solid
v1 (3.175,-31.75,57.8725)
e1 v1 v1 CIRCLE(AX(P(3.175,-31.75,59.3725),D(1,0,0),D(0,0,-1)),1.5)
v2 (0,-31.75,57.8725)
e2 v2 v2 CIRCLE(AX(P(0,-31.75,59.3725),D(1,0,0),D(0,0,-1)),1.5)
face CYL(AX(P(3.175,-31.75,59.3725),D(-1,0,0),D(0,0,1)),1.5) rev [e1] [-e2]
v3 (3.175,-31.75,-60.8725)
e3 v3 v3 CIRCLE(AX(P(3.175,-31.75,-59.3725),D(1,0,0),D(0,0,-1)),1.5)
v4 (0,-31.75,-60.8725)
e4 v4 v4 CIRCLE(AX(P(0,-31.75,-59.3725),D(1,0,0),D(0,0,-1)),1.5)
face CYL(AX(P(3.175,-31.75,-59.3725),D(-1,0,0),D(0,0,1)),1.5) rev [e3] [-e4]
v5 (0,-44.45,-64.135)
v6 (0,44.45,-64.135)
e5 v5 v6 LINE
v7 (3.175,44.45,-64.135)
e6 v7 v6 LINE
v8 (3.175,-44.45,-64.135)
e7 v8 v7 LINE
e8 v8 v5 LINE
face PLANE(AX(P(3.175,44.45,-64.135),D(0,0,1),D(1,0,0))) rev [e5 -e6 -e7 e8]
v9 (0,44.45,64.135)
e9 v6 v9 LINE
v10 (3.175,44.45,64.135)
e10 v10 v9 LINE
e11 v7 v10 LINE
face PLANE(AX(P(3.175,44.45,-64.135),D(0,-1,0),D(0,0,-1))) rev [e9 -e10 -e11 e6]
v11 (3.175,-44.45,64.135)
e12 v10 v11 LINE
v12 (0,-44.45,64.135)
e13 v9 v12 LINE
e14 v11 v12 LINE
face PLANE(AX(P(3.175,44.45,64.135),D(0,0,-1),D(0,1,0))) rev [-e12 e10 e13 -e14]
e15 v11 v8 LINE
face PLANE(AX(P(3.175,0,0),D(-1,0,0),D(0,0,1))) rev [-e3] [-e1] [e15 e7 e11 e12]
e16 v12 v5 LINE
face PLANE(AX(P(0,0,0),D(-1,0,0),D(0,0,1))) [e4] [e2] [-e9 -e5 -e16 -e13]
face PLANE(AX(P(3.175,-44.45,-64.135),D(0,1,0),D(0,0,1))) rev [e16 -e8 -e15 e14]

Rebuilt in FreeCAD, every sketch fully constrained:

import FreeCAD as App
import Part
import Sketcher
Q = App.Units.Quantity


def add_polygon(sketch, points):
    """Adds a closed chain of lines whose ends are joined by coincident constraints."""
    first, n = sketch.GeometryCount, len(points)
    for a, b in zip(points, points[1:] + points[:1]):
        sketch.addGeometry(Part.LineSegment(App.Vector(*a, 0), App.Vector(*b, 0)), False)
    for i in range(n):
        sketch.addConstraint(Sketcher.Constraint("Coincident", first + i, 2, first + (i + 1) % n, 1))

doc = App.newDocument("Part")
params = doc.addObject("Spreadsheet::Sheet", "Params")
for row, (alias, value) in enumerate([
    ("sketch1_width", "3.5 in"),
    ("sketch1_height", "5.05 in"),
    ("pad1_length", "0.125 in"),
], start=1):
    params.set(f"A{row}", alias)
    params.set(f"B{row}", "=" + value)
    params.setAlias(f"B{row}", alias)

body = doc.addObject("PartDesign::Body", "Body")

sketch1 = body.newObject("Sketcher::SketchObject", "Sketch")
sketch1.AttachmentSupport = (doc.getObject("YZ_Plane"), [""])
sketch1.MapMode = "FlatFace"
add_polygon(sketch1, [(44.45, 64.135), (-44.45, 64.135), (-44.45, -64.135), (44.45, -64.135)])
sketch1.addGeometry(Part.Circle(App.Vector(-31.75, 59.3725, 0), App.Vector(0, 0, 1), 1.5), False)
sketch1.addGeometry(Part.Circle(App.Vector(-31.75, -59.3725, 0), App.Vector(0, 0, 1), 1.5), False)
sketch1.addConstraint(Sketcher.Constraint("Horizontal", 0))
sketch1.addConstraint(Sketcher.Constraint("Vertical", 1))
sketch1.addConstraint(Sketcher.Constraint("Horizontal", 2))
sketch1.addConstraint(Sketcher.Constraint("Vertical", 3))
sketch1.addConstraint(Sketcher.Constraint("Equal", 4, 5))
sketch1.addConstraint(Sketcher.Constraint("Symmetric", 0, 2, 2, 2, -1, 1))
sketch1.addConstraint(Sketcher.Constraint("Symmetric", 4, 3, 5, 3, -1))
sketch1.addConstraint(Sketcher.Constraint("DistanceX", 0, 2, 0, 1, Q("3.5 in")))
sketch1.addConstraint(Sketcher.Constraint("DistanceX", 5, 3, 2, 2, Q("3 in")))
sketch1.addConstraint(Sketcher.Constraint("DistanceY", 1, 2, 1, 1, Q("5.05 in")))
sketch1.addConstraint(Sketcher.Constraint("Diameter", 4, Q("3 mm")))
sketch1.addConstraint(Sketcher.Constraint("DistanceY", 5, 3, 4, 3, Q("4.675 in")))
sketch1.setExpression("Constraints[11]", "Params.sketch1_width")
sketch1.setExpression("Constraints[13]", "Params.sketch1_height")
pad1 = body.newObject("PartDesign::Pad", "Pad")
pad1.Profile = sketch1
pad1.setExpression("Length", "Params.pad1_length")

doc.recompute()
